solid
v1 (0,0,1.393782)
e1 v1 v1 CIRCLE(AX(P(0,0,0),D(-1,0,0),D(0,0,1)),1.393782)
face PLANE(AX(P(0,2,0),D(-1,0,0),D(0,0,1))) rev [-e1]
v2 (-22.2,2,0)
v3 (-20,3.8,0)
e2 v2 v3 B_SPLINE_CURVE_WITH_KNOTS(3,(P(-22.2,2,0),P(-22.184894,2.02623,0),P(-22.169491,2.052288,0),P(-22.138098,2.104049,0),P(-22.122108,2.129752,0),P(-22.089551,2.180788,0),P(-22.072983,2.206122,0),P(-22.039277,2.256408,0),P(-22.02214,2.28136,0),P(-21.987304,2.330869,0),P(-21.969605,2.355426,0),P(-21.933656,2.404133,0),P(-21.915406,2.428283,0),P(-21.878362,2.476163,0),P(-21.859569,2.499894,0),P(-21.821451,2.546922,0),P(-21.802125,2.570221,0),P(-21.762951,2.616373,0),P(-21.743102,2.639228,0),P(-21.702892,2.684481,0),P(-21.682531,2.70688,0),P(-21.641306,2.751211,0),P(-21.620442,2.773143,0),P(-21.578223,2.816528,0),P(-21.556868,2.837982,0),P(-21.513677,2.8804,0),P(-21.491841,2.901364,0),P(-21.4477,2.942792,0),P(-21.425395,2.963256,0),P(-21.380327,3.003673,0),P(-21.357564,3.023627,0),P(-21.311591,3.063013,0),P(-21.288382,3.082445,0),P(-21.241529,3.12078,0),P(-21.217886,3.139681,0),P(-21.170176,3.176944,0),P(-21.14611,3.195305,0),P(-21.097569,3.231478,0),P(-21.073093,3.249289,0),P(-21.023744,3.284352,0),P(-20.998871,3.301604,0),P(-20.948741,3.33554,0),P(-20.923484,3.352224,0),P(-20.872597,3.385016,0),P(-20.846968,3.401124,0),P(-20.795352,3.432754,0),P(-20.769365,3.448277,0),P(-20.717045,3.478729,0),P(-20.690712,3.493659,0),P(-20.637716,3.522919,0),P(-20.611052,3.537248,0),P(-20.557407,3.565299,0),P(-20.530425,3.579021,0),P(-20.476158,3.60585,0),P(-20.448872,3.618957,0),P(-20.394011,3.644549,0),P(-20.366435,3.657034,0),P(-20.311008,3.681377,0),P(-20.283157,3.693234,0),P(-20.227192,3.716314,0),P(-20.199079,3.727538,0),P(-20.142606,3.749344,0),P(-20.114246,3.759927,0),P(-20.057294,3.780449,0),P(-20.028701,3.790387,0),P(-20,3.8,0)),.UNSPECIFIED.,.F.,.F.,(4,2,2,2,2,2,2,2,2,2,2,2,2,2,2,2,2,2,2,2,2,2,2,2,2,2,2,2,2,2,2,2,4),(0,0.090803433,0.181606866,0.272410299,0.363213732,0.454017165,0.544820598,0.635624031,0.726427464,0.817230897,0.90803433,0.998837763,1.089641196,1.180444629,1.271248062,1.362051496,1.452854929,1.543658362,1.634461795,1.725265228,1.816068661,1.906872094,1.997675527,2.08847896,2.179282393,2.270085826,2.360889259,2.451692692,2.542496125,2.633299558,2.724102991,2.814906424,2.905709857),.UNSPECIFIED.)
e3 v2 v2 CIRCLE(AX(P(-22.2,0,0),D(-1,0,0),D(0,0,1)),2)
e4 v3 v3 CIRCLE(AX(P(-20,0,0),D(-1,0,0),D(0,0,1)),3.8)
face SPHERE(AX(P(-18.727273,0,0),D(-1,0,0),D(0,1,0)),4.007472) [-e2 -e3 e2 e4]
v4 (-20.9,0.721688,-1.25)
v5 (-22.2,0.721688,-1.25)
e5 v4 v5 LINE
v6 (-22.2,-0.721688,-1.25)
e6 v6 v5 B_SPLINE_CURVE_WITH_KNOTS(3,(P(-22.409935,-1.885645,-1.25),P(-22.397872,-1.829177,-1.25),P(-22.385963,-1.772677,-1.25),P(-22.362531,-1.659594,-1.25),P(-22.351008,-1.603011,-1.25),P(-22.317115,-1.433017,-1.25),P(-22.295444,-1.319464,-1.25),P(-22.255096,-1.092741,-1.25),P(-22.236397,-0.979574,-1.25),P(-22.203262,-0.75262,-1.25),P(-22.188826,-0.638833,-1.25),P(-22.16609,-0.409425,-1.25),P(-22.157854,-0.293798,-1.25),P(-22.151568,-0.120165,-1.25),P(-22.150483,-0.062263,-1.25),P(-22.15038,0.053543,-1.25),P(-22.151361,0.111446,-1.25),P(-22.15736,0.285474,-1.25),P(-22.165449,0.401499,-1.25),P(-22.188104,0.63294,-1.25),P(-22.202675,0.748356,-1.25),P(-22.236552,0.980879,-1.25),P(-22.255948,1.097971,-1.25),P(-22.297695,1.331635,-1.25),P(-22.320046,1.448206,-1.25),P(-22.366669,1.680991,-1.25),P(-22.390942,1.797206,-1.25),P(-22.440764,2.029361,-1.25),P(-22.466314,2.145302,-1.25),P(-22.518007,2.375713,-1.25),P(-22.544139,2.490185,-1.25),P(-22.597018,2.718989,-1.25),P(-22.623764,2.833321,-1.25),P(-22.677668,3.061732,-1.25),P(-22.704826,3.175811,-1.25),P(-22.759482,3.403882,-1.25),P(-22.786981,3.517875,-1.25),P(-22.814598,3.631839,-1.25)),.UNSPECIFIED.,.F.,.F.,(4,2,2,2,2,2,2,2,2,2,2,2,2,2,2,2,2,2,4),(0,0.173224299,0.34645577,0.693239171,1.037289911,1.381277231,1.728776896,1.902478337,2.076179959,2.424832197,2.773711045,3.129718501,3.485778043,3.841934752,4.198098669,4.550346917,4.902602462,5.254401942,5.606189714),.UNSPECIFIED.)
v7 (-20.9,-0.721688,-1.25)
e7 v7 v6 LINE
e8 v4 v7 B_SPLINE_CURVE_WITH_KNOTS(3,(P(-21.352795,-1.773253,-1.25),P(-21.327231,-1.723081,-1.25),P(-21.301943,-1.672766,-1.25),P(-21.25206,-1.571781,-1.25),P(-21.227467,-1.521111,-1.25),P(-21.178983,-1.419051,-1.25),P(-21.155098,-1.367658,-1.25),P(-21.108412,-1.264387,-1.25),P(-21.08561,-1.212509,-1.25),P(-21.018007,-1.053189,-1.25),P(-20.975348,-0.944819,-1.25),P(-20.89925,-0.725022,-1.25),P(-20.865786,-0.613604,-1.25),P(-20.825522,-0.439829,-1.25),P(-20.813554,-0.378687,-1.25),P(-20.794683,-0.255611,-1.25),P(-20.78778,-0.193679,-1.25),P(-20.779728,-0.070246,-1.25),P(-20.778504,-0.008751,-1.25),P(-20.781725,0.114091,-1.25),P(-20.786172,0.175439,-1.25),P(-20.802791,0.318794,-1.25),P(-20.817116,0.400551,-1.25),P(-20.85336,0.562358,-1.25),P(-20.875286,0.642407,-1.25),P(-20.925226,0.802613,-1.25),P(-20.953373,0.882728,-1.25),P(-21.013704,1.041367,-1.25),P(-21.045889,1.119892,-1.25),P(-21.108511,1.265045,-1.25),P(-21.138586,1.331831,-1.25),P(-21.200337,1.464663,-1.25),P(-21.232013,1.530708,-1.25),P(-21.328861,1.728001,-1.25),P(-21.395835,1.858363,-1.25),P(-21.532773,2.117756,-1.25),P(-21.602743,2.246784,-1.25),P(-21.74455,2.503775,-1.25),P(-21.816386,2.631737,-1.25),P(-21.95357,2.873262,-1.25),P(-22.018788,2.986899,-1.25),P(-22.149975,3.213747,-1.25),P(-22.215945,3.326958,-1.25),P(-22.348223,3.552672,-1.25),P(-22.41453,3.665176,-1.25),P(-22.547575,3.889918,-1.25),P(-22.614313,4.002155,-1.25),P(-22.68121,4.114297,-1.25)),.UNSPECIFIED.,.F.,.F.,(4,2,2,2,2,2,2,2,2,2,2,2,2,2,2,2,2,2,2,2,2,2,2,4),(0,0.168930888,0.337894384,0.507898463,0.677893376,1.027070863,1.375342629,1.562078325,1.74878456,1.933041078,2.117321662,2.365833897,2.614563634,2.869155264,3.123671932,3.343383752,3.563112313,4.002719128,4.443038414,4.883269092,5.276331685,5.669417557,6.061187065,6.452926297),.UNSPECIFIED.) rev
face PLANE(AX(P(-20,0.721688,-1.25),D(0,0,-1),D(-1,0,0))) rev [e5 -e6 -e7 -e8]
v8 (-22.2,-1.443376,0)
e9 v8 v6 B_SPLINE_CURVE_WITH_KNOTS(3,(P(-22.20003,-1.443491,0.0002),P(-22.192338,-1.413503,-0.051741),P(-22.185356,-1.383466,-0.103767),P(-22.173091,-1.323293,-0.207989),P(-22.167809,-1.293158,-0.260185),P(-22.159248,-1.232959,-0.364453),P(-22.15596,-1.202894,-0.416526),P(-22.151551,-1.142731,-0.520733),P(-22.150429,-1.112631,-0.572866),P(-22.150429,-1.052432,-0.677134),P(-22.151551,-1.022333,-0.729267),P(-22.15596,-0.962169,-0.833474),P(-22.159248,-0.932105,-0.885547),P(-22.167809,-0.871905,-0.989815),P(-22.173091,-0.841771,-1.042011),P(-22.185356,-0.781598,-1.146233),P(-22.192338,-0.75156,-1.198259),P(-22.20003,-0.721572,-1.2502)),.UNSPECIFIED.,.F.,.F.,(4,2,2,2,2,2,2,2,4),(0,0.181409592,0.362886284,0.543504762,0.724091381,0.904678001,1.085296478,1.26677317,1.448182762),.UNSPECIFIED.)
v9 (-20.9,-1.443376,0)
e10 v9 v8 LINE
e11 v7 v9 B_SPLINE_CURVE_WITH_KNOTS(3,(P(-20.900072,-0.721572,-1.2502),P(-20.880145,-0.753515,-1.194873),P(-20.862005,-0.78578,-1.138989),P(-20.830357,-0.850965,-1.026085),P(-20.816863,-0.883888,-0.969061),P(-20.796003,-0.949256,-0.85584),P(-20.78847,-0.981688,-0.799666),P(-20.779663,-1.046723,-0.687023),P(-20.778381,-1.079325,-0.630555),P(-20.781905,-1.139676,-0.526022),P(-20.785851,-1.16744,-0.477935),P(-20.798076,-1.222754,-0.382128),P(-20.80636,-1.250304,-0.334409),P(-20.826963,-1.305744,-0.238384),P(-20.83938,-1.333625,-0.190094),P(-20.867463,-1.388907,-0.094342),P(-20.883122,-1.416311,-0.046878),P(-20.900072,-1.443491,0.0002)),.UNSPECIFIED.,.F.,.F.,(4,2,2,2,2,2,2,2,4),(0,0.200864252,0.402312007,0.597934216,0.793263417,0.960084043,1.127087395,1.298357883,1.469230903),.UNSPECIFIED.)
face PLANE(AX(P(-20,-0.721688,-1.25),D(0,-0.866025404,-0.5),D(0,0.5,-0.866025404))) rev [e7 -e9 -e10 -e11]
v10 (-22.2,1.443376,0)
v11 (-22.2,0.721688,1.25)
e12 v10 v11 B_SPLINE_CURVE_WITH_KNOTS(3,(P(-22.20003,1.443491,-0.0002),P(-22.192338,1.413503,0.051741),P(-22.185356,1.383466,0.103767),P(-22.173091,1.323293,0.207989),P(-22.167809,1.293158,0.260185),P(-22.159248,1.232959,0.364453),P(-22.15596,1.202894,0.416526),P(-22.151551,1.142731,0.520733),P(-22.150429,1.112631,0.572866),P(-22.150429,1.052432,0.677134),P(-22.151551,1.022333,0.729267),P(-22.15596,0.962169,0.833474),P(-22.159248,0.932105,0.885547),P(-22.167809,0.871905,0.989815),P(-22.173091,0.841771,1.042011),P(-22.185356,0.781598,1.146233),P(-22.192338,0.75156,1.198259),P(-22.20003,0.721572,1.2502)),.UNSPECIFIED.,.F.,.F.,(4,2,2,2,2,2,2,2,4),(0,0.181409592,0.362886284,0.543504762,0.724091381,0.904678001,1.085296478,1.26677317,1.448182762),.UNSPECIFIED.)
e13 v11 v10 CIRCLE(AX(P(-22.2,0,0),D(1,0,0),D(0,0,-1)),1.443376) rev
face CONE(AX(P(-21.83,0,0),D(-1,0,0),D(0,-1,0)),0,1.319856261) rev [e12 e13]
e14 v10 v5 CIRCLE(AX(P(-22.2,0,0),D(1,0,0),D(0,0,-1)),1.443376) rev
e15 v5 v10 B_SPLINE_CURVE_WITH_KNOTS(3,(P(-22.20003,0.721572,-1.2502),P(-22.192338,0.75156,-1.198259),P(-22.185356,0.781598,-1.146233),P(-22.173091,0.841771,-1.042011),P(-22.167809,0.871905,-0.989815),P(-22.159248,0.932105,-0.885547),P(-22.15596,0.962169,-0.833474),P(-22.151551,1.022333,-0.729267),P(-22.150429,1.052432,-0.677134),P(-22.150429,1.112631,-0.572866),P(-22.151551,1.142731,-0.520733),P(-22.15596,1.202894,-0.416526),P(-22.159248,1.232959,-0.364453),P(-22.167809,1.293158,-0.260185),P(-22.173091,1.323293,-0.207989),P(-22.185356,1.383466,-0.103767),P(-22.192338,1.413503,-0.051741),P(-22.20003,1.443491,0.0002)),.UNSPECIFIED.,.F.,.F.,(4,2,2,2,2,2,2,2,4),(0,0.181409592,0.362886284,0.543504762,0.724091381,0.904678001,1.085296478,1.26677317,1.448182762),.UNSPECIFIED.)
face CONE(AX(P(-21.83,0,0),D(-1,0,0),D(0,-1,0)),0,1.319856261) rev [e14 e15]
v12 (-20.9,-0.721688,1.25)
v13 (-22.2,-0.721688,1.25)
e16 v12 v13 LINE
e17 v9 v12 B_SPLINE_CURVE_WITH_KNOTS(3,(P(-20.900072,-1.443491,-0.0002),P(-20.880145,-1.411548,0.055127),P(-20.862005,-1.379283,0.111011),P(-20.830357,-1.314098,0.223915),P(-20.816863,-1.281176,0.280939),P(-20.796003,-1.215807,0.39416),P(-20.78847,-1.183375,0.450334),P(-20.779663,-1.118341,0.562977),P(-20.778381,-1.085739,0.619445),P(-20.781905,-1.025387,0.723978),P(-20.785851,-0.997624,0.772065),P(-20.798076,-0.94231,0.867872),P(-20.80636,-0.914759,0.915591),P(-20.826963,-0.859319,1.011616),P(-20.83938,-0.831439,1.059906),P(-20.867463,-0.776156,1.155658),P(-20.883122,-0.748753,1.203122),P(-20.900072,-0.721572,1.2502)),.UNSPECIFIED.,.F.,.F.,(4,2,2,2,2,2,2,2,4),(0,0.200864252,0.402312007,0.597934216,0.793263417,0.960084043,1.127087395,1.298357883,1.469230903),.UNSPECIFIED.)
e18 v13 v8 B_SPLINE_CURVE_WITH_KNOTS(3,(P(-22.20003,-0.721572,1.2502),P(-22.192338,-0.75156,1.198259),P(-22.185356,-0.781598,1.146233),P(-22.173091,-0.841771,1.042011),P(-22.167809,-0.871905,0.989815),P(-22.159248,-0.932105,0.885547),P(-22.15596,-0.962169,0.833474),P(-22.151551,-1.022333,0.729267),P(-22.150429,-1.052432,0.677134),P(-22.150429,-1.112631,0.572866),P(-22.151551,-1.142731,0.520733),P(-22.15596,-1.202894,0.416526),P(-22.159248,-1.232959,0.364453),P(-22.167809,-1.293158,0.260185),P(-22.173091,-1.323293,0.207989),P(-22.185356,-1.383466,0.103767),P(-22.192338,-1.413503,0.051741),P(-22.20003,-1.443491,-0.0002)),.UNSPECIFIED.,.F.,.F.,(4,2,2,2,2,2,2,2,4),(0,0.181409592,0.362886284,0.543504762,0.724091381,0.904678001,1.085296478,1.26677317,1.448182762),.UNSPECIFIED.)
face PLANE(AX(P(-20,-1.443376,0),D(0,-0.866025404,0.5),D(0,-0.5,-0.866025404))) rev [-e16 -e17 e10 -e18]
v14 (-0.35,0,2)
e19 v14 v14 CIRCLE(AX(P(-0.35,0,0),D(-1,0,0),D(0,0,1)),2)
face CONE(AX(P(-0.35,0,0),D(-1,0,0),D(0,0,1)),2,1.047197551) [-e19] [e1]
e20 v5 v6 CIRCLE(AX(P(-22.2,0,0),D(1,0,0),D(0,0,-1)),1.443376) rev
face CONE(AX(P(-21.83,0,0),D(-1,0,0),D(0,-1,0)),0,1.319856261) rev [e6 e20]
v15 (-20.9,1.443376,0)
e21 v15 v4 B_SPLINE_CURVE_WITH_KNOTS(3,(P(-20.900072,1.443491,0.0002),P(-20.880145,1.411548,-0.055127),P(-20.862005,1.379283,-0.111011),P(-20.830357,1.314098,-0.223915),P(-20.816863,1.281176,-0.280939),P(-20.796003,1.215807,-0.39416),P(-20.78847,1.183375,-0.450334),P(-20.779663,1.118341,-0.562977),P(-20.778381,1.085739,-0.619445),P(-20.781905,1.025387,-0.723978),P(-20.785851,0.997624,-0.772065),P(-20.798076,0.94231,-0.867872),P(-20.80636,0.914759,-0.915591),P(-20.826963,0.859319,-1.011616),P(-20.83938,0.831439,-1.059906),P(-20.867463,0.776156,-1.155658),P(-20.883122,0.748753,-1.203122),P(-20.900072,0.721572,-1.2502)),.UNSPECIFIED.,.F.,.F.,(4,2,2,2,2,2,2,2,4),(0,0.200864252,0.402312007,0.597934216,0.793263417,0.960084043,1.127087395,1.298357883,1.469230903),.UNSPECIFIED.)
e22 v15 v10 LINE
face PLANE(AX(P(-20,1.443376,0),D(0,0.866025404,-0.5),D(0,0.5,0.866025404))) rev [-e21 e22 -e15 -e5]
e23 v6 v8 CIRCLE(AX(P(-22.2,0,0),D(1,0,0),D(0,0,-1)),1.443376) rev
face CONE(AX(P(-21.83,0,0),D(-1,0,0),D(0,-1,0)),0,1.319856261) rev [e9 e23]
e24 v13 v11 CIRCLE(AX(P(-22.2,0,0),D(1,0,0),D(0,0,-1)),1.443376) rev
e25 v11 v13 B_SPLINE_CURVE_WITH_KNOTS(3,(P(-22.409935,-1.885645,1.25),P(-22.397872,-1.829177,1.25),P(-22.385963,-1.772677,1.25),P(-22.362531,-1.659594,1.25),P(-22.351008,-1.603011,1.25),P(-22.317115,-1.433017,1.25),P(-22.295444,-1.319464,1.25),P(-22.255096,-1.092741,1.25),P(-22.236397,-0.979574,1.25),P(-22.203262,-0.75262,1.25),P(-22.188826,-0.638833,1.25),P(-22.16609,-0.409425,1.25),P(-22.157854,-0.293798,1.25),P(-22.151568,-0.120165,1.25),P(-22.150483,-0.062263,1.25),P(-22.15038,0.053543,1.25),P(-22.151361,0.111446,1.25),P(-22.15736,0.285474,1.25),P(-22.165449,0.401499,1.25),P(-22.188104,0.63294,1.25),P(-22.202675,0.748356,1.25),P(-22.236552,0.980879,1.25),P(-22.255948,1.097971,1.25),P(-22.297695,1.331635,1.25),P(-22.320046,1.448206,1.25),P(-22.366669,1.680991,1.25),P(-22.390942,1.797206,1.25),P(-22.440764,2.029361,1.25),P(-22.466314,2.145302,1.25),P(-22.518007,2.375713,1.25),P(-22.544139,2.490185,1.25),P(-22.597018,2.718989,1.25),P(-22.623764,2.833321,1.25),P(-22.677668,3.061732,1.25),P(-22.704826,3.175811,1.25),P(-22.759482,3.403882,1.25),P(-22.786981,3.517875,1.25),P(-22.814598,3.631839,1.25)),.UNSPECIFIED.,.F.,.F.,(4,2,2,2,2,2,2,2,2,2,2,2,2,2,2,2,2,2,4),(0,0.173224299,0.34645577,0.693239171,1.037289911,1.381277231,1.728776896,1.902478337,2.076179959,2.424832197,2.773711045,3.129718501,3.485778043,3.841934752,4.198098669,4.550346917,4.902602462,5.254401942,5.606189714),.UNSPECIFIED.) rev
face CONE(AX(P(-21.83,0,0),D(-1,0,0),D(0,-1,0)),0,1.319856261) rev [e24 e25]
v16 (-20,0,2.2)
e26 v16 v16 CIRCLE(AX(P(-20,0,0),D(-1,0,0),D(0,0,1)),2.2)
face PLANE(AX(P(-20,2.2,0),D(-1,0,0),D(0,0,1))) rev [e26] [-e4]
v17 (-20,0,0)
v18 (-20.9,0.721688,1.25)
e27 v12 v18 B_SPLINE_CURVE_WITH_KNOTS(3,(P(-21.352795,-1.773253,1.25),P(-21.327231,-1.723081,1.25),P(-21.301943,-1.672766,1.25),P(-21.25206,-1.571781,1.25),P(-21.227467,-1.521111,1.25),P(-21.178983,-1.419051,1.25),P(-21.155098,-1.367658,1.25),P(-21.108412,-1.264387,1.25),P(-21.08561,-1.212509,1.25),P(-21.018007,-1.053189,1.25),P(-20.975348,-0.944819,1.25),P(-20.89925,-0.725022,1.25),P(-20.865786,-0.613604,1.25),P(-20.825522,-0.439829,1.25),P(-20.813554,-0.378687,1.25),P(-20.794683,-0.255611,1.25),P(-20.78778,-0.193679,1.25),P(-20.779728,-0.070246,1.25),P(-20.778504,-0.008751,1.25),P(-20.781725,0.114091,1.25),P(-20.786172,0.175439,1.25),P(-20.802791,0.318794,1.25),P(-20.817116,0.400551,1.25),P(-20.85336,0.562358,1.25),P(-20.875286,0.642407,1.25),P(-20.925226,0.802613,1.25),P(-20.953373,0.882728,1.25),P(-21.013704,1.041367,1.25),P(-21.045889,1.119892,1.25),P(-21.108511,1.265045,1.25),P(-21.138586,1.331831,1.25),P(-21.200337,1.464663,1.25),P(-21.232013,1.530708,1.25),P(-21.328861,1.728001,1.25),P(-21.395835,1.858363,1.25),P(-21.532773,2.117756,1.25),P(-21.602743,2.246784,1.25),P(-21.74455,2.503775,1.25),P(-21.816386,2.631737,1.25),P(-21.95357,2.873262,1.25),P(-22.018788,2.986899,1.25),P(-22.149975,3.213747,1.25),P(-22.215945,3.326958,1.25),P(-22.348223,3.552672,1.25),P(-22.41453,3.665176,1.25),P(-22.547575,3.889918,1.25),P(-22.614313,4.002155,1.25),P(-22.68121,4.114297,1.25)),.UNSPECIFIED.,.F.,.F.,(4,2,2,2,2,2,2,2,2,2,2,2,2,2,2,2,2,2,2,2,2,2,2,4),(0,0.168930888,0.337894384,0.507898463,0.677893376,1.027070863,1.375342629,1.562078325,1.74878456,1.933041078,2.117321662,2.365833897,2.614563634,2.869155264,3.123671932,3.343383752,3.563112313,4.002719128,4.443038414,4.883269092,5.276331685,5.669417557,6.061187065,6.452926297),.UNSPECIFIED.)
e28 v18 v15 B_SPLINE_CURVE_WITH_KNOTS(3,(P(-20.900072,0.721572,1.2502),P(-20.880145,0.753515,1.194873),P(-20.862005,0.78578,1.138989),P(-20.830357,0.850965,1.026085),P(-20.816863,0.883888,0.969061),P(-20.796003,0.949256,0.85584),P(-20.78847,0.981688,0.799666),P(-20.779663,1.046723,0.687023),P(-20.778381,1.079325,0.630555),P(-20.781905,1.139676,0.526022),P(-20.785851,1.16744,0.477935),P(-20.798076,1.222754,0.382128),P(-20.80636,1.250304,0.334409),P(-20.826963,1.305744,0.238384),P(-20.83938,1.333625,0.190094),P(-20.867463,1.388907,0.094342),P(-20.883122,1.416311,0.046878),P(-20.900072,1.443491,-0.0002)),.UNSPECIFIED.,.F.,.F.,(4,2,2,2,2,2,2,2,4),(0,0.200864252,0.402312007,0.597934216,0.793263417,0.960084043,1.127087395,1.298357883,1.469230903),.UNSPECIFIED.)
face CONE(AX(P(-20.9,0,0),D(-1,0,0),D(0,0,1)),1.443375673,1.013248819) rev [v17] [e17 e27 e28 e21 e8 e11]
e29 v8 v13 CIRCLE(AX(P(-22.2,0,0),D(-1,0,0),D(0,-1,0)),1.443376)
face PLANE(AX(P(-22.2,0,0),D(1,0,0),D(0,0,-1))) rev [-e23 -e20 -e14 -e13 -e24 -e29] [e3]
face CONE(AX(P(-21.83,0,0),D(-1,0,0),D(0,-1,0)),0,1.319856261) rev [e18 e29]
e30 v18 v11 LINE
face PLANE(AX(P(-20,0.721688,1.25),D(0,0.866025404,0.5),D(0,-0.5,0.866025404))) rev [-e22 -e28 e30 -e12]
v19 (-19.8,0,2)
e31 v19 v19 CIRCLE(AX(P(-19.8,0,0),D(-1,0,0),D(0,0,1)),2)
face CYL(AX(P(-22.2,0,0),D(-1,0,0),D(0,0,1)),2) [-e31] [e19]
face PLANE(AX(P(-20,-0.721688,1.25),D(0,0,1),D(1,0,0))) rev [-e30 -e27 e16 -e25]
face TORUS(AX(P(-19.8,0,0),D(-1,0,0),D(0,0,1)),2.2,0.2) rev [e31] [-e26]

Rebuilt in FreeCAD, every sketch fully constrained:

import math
import FreeCAD as App
import Part
import Sketcher

V = App.Vector
Q = App.Units.Quantity


def add_polygon(sketch, points):
    """Adds a closed chain of lines whose ends are joined by coincident constraints."""
    first, n = sketch.GeometryCount, len(points)
    for a, b in zip(points, points[1:] + points[:1]):
        sketch.addGeometry(Part.LineSegment(App.Vector(*a, 0), App.Vector(*b, 0)), False)
    for i in range(n):
        sketch.addConstraint(Sketcher.Constraint("Coincident", first + i, 2, first + (i + 1) % n, 1))

doc = App.newDocument("Part")
body = doc.addObject("PartDesign::Body", "Body")

sketch1 = body.newObject("Sketcher::SketchObject", "Sketch")
sketch1.AttachmentSupport = (doc.getObject("XY_Plane"), [""])
sketch1.MapMode = "FlatFace"
sketch1.addGeometry([
    Part.LineSegment(V(0, 2, 0), V(-19.8, 2, 0)),
    Part.ArcOfCircle(Part.Circle(V(-19.8, 2.2, 0), V(0, 0, 1), 0.2), math.radians(-180), math.radians(-90)),
    Part.LineSegment(V(-20, 2.2, 0), V(-20, 3.8, 0)),
    Part.ArcOfCircle(Part.Circle(V(-18.73, 0, 0), V(0, 0, 1), 4.01), math.radians(109), math.radians(150)),
    Part.LineSegment(V(-22.2, 2, 0), V(-22.2, 0, 0)),
    Part.LineSegment(V(-22.2, 0, 0), V(0, 0, 0)),
    Part.LineSegment(V(0, 0, 0), V(0, 2, 0)),
], False)
sketch1.addConstraint([
    Sketcher.Constraint("Tangent", 0, 2, 1, 2),
    Sketcher.Constraint("Tangent", 1, 1, 2, 1),
    Sketcher.Constraint("Coincident", 2, 2, 3, 1),
    Sketcher.Constraint("Coincident", 3, 2, 4, 1),
    Sketcher.Constraint("Coincident", 4, 2, 5, 1),
    Sketcher.Constraint("Coincident", 5, 2, 6, 1),
    Sketcher.Constraint("Coincident", 6, 2, 0, 1),
    Sketcher.Constraint("Horizontal", 0),
    Sketcher.Constraint("Vertical", 2),
    Sketcher.Constraint("Vertical", 4),
    Sketcher.Constraint("Horizontal", 5),
    Sketcher.Constraint("Vertical", 6),
    Sketcher.Constraint("Coincident", 5, 2, -1, 1),
    Sketcher.Constraint("PointOnObject", 3, 3, -1),
    Sketcher.Constraint("Horizontal", 0, 2, 3, 2),
    Sketcher.Constraint("Radius", 1, 0.2),
    Sketcher.Constraint("DistanceY", 4, 2, 4, 1, 2.0),
    Sketcher.Constraint("DistanceX", 0, 2, 0, 1, 19.8),
    Sketcher.Constraint("DistanceX", 5, 1, 5, 2, 22.2),
    Sketcher.Constraint("DistanceY", 2, 1, 2, 2, 1.6),
])
revolution = body.newObject("PartDesign::Revolution", "Revolution")
revolution.Profile = sketch1
revolution.ReferenceAxis = (sketch1, ["H_Axis"])
revolution.Angle = 360

sketch2 = body.newObject("Sketcher::SketchObject", "Sketch001")
sketch2.AttachmentSupport = (doc.getObject("YZ_Plane"), [""])
sketch2.MapMode = "FlatFace"
sketch2.AttachmentOffset = App.Placement(V(0, 0, -22.2), App.Rotation())
add_polygon(sketch2, [(1.4, 0), (0.7, -1.2), (-0.7, -1.2), (-1.4, 0), (-0.7, 1.2), (0.7, 1.2)])
sketch2.addConstraint([
    Sketcher.Constraint("Horizontal", 1),
    Sketcher.Constraint("Horizontal", 4),
    Sketcher.Constraint("Symmetric", 0, 2, 3, 2, -1, 1),
    Sketcher.Constraint("Symmetric", 2, 2, 5, 2, -1, 1),
    Sketcher.Constraint("PointOnObject", 2, 2, -1),
    Sketcher.Constraint("Parallel", 2, 5),
    Sketcher.Constraint("Vertical", 1, 2, 3, 2),
    Sketcher.Constraint("Angle", 0, Q("-120 deg")),
    Sketcher.Constraint("DistanceY", 1, 2, 3, 2, 2.5),
    Sketcher.Constraint("DistanceX", 1, 2, 1, 1, 1.443376),
])
pocket1 = body.newObject("PartDesign::Pocket", "Pocket")
pocket1.Profile = sketch2
pocket1.Length = 2.2
pocket1.Reversed = True

sketch3 = body.newObject("Sketcher::SketchObject", "Sketch002")
sketch3.AttachmentSupport = (doc.getObject("XY_Plane"), [""])
sketch3.MapMode = "FlatFace"
add_polygon(sketch3, [(-20.9, 1.44), (-20, 0), (-19.63, 0), (-19.63, 1.44)])
sketch3.addConstraint([
    Sketcher.Constraint("Horizontal", 1),
    Sketcher.Constraint("Vertical", 2),
    Sketcher.Constraint("Horizontal", 3),
    Sketcher.Constraint("PointOnObject", 0, 2, -1),
    Sketcher.Constraint("DistanceX", 0, 2, -1, 1, 20.0),
    Sketcher.Constraint("DistanceX", 1, 1, 1, 2, 0.37),
    Sketcher.Constraint("DistanceX", 3, 2, 3, 1, 1.27),
    Sketcher.Constraint("Distance", 0, 1.70098),
])
revolution2 = body.newObject("PartDesign::Revolution", "Revolution001")
revolution2.Profile = sketch3
revolution2.ReferenceAxis = (sketch3, ["H_Axis"])
revolution2.Angle = 360

sketch4 = body.newObject("Sketcher::SketchObject", "Sketch003")
sketch4.AttachmentSupport = (doc.getObject("XY_Plane"), [""])
sketch4.MapMode = "FlatFace"
add_polygon(sketch4, [(-21.83, 0), (-22.2, 1.44), (-22.2, 0)])
sketch4.addConstraint([
    Sketcher.Constraint("Vertical", 1),
    Sketcher.Constraint("Horizontal", 2),
    Sketcher.Constraint("PointOnObject", 1, 2, -1),
    Sketcher.Constraint("DistanceX", 2, 1, 2, 2, 0.37),
    Sketcher.Constraint("DistanceX", 0, 2, -1, 1, 22.2),
    Sketcher.Constraint("DistanceY", 1, 2, 1, 1, 1.443376),
])
groove = body.newObject("PartDesign::Groove", "Groove")
groove.Profile = sketch4
groove.ReferenceAxis = (sketch4, ["H_Axis"])
groove.Angle = 360

sketch5 = body.newObject("Sketcher::SketchObject", "Sketch004")
sketch5.AttachmentSupport = (doc.getObject("XY_Plane"), [""])
sketch5.MapMode = "FlatFace"
add_polygon(sketch5, [(-0.3, 2), (0, 1.4), (0.3, 2)])
sketch5.addConstraint([
    Sketcher.Constraint("Horizontal", 2),
    Sketcher.Constraint("PointOnObject", 0, 2, -2),
    Sketcher.Constraint("Equal", 0, 1),
    Sketcher.Constraint("Angle", 0, Q("-60 deg")),
    Sketcher.Constraint("DistanceX", 2, 2, 2, 1, 0.7),
    Sketcher.Constraint("DistanceY", -1, 1, 1, 2, 2.0),
])
groove2 = body.newObject("PartDesign::Groove", "Groove001")
groove2.Profile = sketch5
groove2.ReferenceAxis = (sketch5, ["H_Axis"])
groove2.Angle = 360

doc.recompute()
